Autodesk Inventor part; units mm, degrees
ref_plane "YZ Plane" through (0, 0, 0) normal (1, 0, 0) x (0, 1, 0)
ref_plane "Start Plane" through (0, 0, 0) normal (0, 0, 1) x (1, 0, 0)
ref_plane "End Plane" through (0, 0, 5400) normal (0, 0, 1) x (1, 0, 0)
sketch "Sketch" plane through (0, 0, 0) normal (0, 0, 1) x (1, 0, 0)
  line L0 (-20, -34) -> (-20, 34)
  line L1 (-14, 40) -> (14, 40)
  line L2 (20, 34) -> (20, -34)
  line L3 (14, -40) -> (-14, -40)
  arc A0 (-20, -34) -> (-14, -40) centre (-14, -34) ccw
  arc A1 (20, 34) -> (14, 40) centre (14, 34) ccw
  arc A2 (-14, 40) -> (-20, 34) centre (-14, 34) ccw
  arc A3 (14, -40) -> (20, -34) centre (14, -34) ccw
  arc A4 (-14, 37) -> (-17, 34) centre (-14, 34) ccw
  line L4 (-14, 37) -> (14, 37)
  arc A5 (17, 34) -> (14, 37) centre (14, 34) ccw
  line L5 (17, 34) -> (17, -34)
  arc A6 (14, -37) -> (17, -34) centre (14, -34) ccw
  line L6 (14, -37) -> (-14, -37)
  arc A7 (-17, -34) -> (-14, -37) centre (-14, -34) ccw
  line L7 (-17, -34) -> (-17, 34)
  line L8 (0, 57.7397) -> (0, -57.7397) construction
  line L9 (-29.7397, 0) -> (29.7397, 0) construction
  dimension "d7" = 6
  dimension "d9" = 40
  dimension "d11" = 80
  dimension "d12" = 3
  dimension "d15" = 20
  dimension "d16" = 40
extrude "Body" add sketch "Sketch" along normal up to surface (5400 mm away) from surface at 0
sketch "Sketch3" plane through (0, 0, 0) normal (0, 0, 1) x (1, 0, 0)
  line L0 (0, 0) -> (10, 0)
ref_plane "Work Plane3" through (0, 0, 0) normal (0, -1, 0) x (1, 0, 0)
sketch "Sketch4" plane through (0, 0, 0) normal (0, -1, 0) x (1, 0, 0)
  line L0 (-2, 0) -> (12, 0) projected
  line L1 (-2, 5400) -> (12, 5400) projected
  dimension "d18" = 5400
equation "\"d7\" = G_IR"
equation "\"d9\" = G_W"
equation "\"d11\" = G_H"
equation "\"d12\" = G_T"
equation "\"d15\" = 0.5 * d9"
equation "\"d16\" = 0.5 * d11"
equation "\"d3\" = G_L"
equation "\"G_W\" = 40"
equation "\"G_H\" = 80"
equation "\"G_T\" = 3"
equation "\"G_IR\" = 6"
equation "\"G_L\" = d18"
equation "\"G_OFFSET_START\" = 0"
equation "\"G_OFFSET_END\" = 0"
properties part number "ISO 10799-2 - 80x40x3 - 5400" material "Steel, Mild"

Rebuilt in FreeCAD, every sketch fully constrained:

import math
import FreeCAD as App
import Part
import Sketcher

V = App.Vector

doc = App.newDocument("Part")
body = doc.addObject("PartDesign::Body", "Body")

# Sketch on XY plane
sketch1 = body.newObject("Sketcher::SketchObject", "Sketch")
sketch1.AttachmentSupport = (doc.getObject("XY_Plane"), [""])
sketch1.MapMode = "FlatFace"
sketch1.addGeometry([
    Part.LineSegment(V(-20, 34, 0), V(-20, -34, 0)),  # 0
    Part.ArcOfCircle(Part.Circle(V(-14, -34, 0), V(0, 0, 1), 6), math.radians(180), math.radians(270)),  # 1
    Part.LineSegment(V(-14, -40, 0), V(14, -40, 0)),  # 2
    Part.ArcOfCircle(Part.Circle(V(14, -34, 0), V(0, 0, 1), 6), math.radians(-90), math.radians(0)),  # 3
    Part.LineSegment(V(20, -34, 0), V(20, 34, 0)),  # 4
    Part.ArcOfCircle(Part.Circle(V(14, 34, 0), V(0, 0, 1), 6), math.radians(0), math.radians(90)),  # 5
    Part.LineSegment(V(14, 40, 0), V(-14, 40, 0)),  # 6
    Part.ArcOfCircle(Part.Circle(V(-14, 34, 0), V(0, 0, 1), 6), math.radians(90), math.radians(180)),  # 7
    Part.ArcOfCircle(Part.Circle(V(-14, 34, 0), V(0, 0, 1), 3), math.radians(90), math.radians(180)),  # 8
    Part.LineSegment(V(-14, 37, 0), V(14, 37, 0)),  # 9
    Part.ArcOfCircle(Part.Circle(V(14, 34, 0), V(0, 0, 1), 3), math.radians(0), math.radians(90)),  # 10
    Part.LineSegment(V(17, 34, 0), V(17, -34, 0)),  # 11
    Part.ArcOfCircle(Part.Circle(V(14, -34, 0), V(0, 0, 1), 3), math.radians(-90), math.radians(0)),  # 12
    Part.LineSegment(V(14, -37, 0), V(-14, -37, 0)),  # 13
    Part.ArcOfCircle(Part.Circle(V(-14, -34, 0), V(0, 0, 1), 3), math.radians(180), math.radians(270)),  # 14
    Part.LineSegment(V(-17, -34, 0), V(-17, 34, 0)),  # 15
], False)
sketch1.addConstraint([
    Sketcher.Constraint("Tangent", 0, 2, 1, 1),
    Sketcher.Constraint("Tangent", 1, 2, 2, 1),
    Sketcher.Constraint("Tangent", 2, 2, 3, 1),
    Sketcher.Constraint("Tangent", 3, 2, 4, 1),
    Sketcher.Constraint("Tangent", 4, 2, 5, 1),
    Sketcher.Constraint("Tangent", 5, 2, 6, 1),
    Sketcher.Constraint("Tangent", 6, 2, 7, 1),
    Sketcher.Constraint("Tangent", 7, 2, 0, 1),
    Sketcher.Constraint("Tangent", 8, 1, 9, 1),
    Sketcher.Constraint("Tangent", 9, 2, 10, 2),
    Sketcher.Constraint("Tangent", 10, 1, 11, 1),
    Sketcher.Constraint("Tangent", 11, 2, 12, 2),
    Sketcher.Constraint("Tangent", 12, 1, 13, 1),
    Sketcher.Constraint("Tangent", 13, 2, 14, 2),
    Sketcher.Constraint("Tangent", 14, 1, 15, 1),
    Sketcher.Constraint("Tangent", 15, 2, 8, 2),
    Sketcher.Constraint("Vertical", 0),
    Sketcher.Constraint("Horizontal", 2),
    Sketcher.Constraint("Vertical", 4),
    Sketcher.Constraint("Horizontal", 6),
    Sketcher.Constraint("Horizontal", 9),
    Sketcher.Constraint("Vertical", 11),
    Sketcher.Constraint("Horizontal", 13),
    Sketcher.Constraint("Vertical", 15),
    Sketcher.Constraint("Coincident", 8, 3, 7, 3),
    Sketcher.Constraint("Coincident", 10, 3, 5, 3),
    Sketcher.Constraint("Coincident", 12, 3, 3, 3),
    Sketcher.Constraint("Equal", 1, 3),
    Sketcher.Constraint("Equal", 3, 5),
    Sketcher.Constraint("Equal", 5, 7),
    Sketcher.Constraint("Equal", 12, 14),
    Sketcher.Constraint("Symmetric", 1, 3, 5, 3, -1, 1),
    Sketcher.Constraint("Radius", 1, 6.0),
    Sketcher.Constraint("Radius", 8, 3.0),
    Sketcher.Constraint("DistanceX", 0, 2, -1, 1, 20.0),
    Sketcher.Constraint("DistanceY", 1, 2, -1, 1, 40.0),
])
pad1 = body.newObject("PartDesign::Pad", "Pad")
pad1.Profile = sketch1
pad1.Length = 5400

doc.recompute()
